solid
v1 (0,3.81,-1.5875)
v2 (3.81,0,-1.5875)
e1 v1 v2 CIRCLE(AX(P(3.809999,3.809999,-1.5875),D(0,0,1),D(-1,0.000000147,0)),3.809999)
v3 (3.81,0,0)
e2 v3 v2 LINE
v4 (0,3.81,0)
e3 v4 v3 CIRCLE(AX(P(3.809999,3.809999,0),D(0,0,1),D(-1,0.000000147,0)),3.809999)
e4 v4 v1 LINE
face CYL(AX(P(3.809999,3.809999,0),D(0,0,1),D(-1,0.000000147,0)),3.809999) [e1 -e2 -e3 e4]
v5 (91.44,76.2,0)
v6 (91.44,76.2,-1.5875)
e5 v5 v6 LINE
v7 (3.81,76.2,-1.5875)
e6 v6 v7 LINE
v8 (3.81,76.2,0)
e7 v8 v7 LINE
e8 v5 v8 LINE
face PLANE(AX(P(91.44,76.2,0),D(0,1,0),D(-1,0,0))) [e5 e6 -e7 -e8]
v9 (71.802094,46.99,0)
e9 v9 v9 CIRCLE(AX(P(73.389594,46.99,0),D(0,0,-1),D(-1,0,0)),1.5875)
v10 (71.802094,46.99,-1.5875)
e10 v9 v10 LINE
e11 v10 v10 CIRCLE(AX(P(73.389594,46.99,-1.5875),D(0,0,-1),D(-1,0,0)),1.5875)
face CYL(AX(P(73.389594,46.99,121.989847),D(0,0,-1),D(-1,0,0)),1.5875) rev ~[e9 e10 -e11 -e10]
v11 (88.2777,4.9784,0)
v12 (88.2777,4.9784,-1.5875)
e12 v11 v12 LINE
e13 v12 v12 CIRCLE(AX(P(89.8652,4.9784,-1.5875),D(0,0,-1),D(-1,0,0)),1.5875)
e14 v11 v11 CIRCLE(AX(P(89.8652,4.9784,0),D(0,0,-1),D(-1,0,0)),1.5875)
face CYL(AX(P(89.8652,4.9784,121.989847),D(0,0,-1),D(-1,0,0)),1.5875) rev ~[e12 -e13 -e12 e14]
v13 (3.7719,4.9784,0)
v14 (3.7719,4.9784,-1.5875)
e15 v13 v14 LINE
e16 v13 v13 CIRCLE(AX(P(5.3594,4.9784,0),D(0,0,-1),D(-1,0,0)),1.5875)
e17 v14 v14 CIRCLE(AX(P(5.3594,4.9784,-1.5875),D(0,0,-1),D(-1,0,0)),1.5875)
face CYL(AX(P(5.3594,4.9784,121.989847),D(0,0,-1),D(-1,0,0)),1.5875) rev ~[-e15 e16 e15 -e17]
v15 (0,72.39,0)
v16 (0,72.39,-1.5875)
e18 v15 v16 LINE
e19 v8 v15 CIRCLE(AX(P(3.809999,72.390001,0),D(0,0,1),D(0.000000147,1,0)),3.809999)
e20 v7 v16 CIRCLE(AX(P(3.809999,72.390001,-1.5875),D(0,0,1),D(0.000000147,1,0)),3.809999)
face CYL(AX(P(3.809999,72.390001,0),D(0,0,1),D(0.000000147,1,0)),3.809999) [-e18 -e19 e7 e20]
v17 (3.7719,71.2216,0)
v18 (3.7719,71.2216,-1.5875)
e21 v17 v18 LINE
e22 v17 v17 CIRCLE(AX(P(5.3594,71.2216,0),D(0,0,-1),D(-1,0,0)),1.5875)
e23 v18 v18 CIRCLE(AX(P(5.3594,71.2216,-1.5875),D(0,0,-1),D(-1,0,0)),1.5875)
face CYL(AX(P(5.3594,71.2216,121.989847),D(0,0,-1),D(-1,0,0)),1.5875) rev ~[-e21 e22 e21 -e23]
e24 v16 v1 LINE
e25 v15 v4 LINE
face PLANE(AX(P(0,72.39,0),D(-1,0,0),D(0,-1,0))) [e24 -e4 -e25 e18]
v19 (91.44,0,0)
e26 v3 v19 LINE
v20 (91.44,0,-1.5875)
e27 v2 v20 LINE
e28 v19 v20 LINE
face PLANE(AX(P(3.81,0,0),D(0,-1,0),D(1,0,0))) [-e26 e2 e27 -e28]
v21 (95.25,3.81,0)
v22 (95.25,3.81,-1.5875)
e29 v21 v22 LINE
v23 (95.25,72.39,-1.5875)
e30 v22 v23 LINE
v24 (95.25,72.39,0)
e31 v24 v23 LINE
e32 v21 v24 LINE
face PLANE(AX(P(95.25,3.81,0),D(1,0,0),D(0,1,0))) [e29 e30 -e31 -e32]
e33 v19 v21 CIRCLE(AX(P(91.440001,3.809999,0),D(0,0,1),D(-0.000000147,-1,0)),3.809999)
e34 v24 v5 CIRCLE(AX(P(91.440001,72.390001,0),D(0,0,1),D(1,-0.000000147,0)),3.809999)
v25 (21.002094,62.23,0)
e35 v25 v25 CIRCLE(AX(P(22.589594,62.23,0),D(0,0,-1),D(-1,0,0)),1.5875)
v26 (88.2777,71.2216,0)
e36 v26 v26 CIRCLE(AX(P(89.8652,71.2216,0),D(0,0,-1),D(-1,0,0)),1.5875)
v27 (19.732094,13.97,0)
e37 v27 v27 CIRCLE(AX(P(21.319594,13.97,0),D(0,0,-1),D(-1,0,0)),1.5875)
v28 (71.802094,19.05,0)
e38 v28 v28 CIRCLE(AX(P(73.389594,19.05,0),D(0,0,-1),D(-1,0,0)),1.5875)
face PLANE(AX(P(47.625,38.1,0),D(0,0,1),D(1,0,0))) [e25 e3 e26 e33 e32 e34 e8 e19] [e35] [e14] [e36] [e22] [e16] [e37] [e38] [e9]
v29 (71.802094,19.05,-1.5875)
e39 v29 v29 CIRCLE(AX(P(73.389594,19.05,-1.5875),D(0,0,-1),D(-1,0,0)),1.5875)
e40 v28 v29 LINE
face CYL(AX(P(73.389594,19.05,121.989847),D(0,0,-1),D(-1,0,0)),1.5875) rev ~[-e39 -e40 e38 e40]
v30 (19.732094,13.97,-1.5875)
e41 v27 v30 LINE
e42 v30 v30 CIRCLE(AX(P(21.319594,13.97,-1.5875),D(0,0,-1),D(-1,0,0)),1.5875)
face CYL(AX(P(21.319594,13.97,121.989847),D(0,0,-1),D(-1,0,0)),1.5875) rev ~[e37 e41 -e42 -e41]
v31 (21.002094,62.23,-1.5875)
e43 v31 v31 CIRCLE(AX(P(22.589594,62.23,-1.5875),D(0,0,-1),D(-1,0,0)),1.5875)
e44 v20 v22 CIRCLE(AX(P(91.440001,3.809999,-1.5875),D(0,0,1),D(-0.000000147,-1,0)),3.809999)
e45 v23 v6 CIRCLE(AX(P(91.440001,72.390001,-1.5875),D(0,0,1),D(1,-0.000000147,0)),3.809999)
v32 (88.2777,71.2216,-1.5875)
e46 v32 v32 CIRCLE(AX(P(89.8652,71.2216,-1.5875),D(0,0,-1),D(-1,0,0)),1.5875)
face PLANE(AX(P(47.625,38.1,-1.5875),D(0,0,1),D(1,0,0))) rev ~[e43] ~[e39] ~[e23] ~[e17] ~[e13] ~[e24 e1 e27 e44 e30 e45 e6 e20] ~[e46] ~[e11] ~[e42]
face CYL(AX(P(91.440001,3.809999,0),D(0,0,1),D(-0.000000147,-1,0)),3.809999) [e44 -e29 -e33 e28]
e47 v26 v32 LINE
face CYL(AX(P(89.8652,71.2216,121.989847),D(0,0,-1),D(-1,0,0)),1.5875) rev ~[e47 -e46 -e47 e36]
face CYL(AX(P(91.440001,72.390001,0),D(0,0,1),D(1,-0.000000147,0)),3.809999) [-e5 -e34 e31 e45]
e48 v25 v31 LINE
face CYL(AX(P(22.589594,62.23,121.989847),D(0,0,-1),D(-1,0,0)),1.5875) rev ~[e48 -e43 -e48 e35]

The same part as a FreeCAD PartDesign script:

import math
import FreeCAD as App
import Part
import Sketcher
Q = App.Units.Quantity

doc = App.newDocument("Part")
body = doc.addObject("PartDesign::Body", "Body")

# Sketch on XY plane
sketch1 = body.newObject("Sketcher::SketchObject", "Sketch")
sketch1.AttachmentSupport = (doc.getObject("XY_Plane"), [""])
sketch1.MapMode = "FlatFace"
sketch1.addGeometry(Part.ArcOfCircle(Part.Circle(App.Vector(3.809999, 3.809999, 0), App.Vector(0, 0, 1), 3.809999), math.radians(179.999992), math.radians(270.000008)), False)
sketch1.addGeometry(Part.LineSegment(App.Vector(3.81, 0, 0), App.Vector(91.44, 0, 0)), False)
sketch1.addGeometry(Part.ArcOfCircle(Part.Circle(App.Vector(91.440001, 3.809999, 0), App.Vector(0, 0, 1), 3.809999), math.radians(-90.000008), math.radians(0.000008)), False)
sketch1.addGeometry(Part.LineSegment(App.Vector(95.25, 3.81, 0), App.Vector(95.25, 72.39, 0)), False)
sketch1.addGeometry(Part.ArcOfCircle(Part.Circle(App.Vector(91.440001, 72.390001, 0), App.Vector(0, 0, 1), 3.809999), math.radians(-0.000008), math.radians(90.000008)), False)
sketch1.addGeometry(Part.LineSegment(App.Vector(91.44, 76.2, 0), App.Vector(3.81, 76.2, 0)), False)
sketch1.addGeometry(Part.ArcOfCircle(Part.Circle(App.Vector(3.809999, 72.390001, 0), App.Vector(0, 0, 1), 3.809999), math.radians(89.999992), math.radians(180.000008)), False)
sketch1.addGeometry(Part.LineSegment(App.Vector(0, 72.39, 0), App.Vector(0, 3.81, 0)), False)
sketch1.addConstraint(Sketcher.Constraint("Tangent", 0, 2, 1, 1))
sketch1.addConstraint(Sketcher.Constraint("Tangent", 1, 2, 2, 1))
sketch1.addConstraint(Sketcher.Constraint("Tangent", 2, 2, 3, 1))
sketch1.addConstraint(Sketcher.Constraint("Tangent", 3, 2, 4, 1))
sketch1.addConstraint(Sketcher.Constraint("Tangent", 4, 2, 5, 1))
sketch1.addConstraint(Sketcher.Constraint("Tangent", 5, 2, 6, 1))
sketch1.addConstraint(Sketcher.Constraint("Tangent", 6, 2, 7, 1))
sketch1.addConstraint(Sketcher.Constraint("Tangent", 7, 2, 0, 1))
sketch1.addConstraint(Sketcher.Constraint("Horizontal", 1))
sketch1.addConstraint(Sketcher.Constraint("Vertical", 3))
sketch1.addConstraint(Sketcher.Constraint("Horizontal", 5))
sketch1.addConstraint(Sketcher.Constraint("Vertical", 7))
sketch1.addConstraint(Sketcher.Constraint("Equal", 0, 2))
sketch1.addConstraint(Sketcher.Constraint("Equal", 2, 4))
sketch1.addConstraint(Sketcher.Constraint("Equal", 4, 6))
sketch1.addConstraint(Sketcher.Constraint("PointOnObject", 0, 2, -1))
sketch1.addConstraint(Sketcher.Constraint("PointOnObject", 6, 2, -2))
sketch1.addConstraint(Sketcher.Constraint("Radius", 0, Q("0.15 in")))
sketch1.addConstraint(Sketcher.Constraint("DistanceY", 3, 1, 3, 2, Q("2.7 in")))
sketch1.addConstraint(Sketcher.Constraint("DistanceX", 1, 1, 1, 2, Q("3.45 in")))
pad1 = body.newObject("PartDesign::Pad", "Pad")
pad1.Profile = sketch1
pad1.Length = Q("0.0625 in")
pad1.Reversed = True

# Sketch on XY plane
sketch2 = body.newObject("Sketcher::SketchObject", "Sketch001")
sketch2.AttachmentSupport = (doc.getObject("XY_Plane"), [""])
sketch2.MapMode = "FlatFace"
sketch2.addGeometry(Part.Circle(App.Vector(5.3594, 71.2216, 0), App.Vector(0, 0, 1), 1.5875), False)
sketch2.addGeometry(Part.Circle(App.Vector(22.589594, 62.23, 0), App.Vector(0, 0, 1), 1.5875), False)
sketch2.addGeometry(Part.Circle(App.Vector(73.389594, 46.99, 0), App.Vector(0, 0, 1), 1.5875), False)
sketch2.addGeometry(Part.Circle(App.Vector(89.8652, 71.2216, 0), App.Vector(0, 0, 1), 1.5875), False)
sketch2.addGeometry(Part.Circle(App.Vector(89.8652, 4.9784, 0), App.Vector(0, 0, 1), 1.5875), False)
sketch2.addGeometry(Part.Circle(App.Vector(73.389594, 19.05, 0), App.Vector(0, 0, 1), 1.5875), False)
sketch2.addGeometry(Part.Circle(App.Vector(21.319594, 13.97, 0), App.Vector(0, 0, 1), 1.5875), False)
sketch2.addGeometry(Part.Circle(App.Vector(5.3594, 4.9784, 0), App.Vector(0, 0, 1), 1.5875), False)
sketch2.addConstraint(Sketcher.Constraint("Equal", 0, 1))
sketch2.addConstraint(Sketcher.Constraint("Equal", 1, 2))
sketch2.addConstraint(Sketcher.Constraint("Equal", 2, 3))
sketch2.addConstraint(Sketcher.Constraint("Equal", 3, 4))
sketch2.addConstraint(Sketcher.Constraint("Equal", 4, 5))
sketch2.addConstraint(Sketcher.Constraint("Equal", 5, 6))
sketch2.addConstraint(Sketcher.Constraint("Equal", 6, 7))
sketch2.addConstraint(Sketcher.Constraint("Horizontal", 0, 3, 3, 3))
sketch2.addConstraint(Sketcher.Constraint("Horizontal", 4, 3, 7, 3))
sketch2.addConstraint(Sketcher.Constraint("Vertical", 3, 3, 4, 3))
sketch2.addConstraint(Sketcher.Constraint("Vertical", 2, 3, 5, 3))
sketch2.addConstraint(Sketcher.Constraint("Vertical", 0, 3, 7, 3))
sketch2.addConstraint(Sketcher.Constraint("Diameter", 0, Q("0.125 in")))
sketch2.addConstraint(Sketcher.Constraint("DistanceX", 1, 3, 2, 3, Q("2 in")))
sketch2.addConstraint(Sketcher.Constraint("DistanceY", 2, 3, 1, 3, Q("0.6 in")))
sketch2.addConstraint(Sketcher.Constraint("DistanceY", 5, 3, 2, 3, Q("1.1 in")))
sketch2.addConstraint(Sketcher.Constraint("DistanceY", 6, 3, 1, 3, Q("1.9 in")))
sketch2.addConstraint(Sketcher.Constraint("DistanceY", -1, 1, 1, 3, Q("2.45 in")))
sketch2.addConstraint(Sketcher.Constraint("DistanceX", 6, 3, 1, 3, Q("0.05 in")))
sketch2.addConstraint(Sketcher.Constraint("DistanceX", -1, 1, 0, 3, Q("0.211 in")))
sketch2.addConstraint(Sketcher.Constraint("DistanceY", -1, 1, 0, 3, Q("2.804 in")))
sketch2.addConstraint(Sketcher.Constraint("DistanceX", -1, 1, 3, 3, Q("3.538 in")))
sketch2.addConstraint(Sketcher.Constraint("DistanceY", -1, 1, 4, 3, Q("0.196 in")))
sketch2.addConstraint(Sketcher.Constraint("DistanceX", -1, 1, 1, 3, Q("22.589594 mm")))
doc.recompute()
hole = body.newObject("PartDesign::Hole", "Hole")
hole.Profile = sketch2
hole.ThreadType = "None"
hole.Diameter = Q("0.125 in")
hole.DepthType = "ThroughAll"

doc.recompute()
